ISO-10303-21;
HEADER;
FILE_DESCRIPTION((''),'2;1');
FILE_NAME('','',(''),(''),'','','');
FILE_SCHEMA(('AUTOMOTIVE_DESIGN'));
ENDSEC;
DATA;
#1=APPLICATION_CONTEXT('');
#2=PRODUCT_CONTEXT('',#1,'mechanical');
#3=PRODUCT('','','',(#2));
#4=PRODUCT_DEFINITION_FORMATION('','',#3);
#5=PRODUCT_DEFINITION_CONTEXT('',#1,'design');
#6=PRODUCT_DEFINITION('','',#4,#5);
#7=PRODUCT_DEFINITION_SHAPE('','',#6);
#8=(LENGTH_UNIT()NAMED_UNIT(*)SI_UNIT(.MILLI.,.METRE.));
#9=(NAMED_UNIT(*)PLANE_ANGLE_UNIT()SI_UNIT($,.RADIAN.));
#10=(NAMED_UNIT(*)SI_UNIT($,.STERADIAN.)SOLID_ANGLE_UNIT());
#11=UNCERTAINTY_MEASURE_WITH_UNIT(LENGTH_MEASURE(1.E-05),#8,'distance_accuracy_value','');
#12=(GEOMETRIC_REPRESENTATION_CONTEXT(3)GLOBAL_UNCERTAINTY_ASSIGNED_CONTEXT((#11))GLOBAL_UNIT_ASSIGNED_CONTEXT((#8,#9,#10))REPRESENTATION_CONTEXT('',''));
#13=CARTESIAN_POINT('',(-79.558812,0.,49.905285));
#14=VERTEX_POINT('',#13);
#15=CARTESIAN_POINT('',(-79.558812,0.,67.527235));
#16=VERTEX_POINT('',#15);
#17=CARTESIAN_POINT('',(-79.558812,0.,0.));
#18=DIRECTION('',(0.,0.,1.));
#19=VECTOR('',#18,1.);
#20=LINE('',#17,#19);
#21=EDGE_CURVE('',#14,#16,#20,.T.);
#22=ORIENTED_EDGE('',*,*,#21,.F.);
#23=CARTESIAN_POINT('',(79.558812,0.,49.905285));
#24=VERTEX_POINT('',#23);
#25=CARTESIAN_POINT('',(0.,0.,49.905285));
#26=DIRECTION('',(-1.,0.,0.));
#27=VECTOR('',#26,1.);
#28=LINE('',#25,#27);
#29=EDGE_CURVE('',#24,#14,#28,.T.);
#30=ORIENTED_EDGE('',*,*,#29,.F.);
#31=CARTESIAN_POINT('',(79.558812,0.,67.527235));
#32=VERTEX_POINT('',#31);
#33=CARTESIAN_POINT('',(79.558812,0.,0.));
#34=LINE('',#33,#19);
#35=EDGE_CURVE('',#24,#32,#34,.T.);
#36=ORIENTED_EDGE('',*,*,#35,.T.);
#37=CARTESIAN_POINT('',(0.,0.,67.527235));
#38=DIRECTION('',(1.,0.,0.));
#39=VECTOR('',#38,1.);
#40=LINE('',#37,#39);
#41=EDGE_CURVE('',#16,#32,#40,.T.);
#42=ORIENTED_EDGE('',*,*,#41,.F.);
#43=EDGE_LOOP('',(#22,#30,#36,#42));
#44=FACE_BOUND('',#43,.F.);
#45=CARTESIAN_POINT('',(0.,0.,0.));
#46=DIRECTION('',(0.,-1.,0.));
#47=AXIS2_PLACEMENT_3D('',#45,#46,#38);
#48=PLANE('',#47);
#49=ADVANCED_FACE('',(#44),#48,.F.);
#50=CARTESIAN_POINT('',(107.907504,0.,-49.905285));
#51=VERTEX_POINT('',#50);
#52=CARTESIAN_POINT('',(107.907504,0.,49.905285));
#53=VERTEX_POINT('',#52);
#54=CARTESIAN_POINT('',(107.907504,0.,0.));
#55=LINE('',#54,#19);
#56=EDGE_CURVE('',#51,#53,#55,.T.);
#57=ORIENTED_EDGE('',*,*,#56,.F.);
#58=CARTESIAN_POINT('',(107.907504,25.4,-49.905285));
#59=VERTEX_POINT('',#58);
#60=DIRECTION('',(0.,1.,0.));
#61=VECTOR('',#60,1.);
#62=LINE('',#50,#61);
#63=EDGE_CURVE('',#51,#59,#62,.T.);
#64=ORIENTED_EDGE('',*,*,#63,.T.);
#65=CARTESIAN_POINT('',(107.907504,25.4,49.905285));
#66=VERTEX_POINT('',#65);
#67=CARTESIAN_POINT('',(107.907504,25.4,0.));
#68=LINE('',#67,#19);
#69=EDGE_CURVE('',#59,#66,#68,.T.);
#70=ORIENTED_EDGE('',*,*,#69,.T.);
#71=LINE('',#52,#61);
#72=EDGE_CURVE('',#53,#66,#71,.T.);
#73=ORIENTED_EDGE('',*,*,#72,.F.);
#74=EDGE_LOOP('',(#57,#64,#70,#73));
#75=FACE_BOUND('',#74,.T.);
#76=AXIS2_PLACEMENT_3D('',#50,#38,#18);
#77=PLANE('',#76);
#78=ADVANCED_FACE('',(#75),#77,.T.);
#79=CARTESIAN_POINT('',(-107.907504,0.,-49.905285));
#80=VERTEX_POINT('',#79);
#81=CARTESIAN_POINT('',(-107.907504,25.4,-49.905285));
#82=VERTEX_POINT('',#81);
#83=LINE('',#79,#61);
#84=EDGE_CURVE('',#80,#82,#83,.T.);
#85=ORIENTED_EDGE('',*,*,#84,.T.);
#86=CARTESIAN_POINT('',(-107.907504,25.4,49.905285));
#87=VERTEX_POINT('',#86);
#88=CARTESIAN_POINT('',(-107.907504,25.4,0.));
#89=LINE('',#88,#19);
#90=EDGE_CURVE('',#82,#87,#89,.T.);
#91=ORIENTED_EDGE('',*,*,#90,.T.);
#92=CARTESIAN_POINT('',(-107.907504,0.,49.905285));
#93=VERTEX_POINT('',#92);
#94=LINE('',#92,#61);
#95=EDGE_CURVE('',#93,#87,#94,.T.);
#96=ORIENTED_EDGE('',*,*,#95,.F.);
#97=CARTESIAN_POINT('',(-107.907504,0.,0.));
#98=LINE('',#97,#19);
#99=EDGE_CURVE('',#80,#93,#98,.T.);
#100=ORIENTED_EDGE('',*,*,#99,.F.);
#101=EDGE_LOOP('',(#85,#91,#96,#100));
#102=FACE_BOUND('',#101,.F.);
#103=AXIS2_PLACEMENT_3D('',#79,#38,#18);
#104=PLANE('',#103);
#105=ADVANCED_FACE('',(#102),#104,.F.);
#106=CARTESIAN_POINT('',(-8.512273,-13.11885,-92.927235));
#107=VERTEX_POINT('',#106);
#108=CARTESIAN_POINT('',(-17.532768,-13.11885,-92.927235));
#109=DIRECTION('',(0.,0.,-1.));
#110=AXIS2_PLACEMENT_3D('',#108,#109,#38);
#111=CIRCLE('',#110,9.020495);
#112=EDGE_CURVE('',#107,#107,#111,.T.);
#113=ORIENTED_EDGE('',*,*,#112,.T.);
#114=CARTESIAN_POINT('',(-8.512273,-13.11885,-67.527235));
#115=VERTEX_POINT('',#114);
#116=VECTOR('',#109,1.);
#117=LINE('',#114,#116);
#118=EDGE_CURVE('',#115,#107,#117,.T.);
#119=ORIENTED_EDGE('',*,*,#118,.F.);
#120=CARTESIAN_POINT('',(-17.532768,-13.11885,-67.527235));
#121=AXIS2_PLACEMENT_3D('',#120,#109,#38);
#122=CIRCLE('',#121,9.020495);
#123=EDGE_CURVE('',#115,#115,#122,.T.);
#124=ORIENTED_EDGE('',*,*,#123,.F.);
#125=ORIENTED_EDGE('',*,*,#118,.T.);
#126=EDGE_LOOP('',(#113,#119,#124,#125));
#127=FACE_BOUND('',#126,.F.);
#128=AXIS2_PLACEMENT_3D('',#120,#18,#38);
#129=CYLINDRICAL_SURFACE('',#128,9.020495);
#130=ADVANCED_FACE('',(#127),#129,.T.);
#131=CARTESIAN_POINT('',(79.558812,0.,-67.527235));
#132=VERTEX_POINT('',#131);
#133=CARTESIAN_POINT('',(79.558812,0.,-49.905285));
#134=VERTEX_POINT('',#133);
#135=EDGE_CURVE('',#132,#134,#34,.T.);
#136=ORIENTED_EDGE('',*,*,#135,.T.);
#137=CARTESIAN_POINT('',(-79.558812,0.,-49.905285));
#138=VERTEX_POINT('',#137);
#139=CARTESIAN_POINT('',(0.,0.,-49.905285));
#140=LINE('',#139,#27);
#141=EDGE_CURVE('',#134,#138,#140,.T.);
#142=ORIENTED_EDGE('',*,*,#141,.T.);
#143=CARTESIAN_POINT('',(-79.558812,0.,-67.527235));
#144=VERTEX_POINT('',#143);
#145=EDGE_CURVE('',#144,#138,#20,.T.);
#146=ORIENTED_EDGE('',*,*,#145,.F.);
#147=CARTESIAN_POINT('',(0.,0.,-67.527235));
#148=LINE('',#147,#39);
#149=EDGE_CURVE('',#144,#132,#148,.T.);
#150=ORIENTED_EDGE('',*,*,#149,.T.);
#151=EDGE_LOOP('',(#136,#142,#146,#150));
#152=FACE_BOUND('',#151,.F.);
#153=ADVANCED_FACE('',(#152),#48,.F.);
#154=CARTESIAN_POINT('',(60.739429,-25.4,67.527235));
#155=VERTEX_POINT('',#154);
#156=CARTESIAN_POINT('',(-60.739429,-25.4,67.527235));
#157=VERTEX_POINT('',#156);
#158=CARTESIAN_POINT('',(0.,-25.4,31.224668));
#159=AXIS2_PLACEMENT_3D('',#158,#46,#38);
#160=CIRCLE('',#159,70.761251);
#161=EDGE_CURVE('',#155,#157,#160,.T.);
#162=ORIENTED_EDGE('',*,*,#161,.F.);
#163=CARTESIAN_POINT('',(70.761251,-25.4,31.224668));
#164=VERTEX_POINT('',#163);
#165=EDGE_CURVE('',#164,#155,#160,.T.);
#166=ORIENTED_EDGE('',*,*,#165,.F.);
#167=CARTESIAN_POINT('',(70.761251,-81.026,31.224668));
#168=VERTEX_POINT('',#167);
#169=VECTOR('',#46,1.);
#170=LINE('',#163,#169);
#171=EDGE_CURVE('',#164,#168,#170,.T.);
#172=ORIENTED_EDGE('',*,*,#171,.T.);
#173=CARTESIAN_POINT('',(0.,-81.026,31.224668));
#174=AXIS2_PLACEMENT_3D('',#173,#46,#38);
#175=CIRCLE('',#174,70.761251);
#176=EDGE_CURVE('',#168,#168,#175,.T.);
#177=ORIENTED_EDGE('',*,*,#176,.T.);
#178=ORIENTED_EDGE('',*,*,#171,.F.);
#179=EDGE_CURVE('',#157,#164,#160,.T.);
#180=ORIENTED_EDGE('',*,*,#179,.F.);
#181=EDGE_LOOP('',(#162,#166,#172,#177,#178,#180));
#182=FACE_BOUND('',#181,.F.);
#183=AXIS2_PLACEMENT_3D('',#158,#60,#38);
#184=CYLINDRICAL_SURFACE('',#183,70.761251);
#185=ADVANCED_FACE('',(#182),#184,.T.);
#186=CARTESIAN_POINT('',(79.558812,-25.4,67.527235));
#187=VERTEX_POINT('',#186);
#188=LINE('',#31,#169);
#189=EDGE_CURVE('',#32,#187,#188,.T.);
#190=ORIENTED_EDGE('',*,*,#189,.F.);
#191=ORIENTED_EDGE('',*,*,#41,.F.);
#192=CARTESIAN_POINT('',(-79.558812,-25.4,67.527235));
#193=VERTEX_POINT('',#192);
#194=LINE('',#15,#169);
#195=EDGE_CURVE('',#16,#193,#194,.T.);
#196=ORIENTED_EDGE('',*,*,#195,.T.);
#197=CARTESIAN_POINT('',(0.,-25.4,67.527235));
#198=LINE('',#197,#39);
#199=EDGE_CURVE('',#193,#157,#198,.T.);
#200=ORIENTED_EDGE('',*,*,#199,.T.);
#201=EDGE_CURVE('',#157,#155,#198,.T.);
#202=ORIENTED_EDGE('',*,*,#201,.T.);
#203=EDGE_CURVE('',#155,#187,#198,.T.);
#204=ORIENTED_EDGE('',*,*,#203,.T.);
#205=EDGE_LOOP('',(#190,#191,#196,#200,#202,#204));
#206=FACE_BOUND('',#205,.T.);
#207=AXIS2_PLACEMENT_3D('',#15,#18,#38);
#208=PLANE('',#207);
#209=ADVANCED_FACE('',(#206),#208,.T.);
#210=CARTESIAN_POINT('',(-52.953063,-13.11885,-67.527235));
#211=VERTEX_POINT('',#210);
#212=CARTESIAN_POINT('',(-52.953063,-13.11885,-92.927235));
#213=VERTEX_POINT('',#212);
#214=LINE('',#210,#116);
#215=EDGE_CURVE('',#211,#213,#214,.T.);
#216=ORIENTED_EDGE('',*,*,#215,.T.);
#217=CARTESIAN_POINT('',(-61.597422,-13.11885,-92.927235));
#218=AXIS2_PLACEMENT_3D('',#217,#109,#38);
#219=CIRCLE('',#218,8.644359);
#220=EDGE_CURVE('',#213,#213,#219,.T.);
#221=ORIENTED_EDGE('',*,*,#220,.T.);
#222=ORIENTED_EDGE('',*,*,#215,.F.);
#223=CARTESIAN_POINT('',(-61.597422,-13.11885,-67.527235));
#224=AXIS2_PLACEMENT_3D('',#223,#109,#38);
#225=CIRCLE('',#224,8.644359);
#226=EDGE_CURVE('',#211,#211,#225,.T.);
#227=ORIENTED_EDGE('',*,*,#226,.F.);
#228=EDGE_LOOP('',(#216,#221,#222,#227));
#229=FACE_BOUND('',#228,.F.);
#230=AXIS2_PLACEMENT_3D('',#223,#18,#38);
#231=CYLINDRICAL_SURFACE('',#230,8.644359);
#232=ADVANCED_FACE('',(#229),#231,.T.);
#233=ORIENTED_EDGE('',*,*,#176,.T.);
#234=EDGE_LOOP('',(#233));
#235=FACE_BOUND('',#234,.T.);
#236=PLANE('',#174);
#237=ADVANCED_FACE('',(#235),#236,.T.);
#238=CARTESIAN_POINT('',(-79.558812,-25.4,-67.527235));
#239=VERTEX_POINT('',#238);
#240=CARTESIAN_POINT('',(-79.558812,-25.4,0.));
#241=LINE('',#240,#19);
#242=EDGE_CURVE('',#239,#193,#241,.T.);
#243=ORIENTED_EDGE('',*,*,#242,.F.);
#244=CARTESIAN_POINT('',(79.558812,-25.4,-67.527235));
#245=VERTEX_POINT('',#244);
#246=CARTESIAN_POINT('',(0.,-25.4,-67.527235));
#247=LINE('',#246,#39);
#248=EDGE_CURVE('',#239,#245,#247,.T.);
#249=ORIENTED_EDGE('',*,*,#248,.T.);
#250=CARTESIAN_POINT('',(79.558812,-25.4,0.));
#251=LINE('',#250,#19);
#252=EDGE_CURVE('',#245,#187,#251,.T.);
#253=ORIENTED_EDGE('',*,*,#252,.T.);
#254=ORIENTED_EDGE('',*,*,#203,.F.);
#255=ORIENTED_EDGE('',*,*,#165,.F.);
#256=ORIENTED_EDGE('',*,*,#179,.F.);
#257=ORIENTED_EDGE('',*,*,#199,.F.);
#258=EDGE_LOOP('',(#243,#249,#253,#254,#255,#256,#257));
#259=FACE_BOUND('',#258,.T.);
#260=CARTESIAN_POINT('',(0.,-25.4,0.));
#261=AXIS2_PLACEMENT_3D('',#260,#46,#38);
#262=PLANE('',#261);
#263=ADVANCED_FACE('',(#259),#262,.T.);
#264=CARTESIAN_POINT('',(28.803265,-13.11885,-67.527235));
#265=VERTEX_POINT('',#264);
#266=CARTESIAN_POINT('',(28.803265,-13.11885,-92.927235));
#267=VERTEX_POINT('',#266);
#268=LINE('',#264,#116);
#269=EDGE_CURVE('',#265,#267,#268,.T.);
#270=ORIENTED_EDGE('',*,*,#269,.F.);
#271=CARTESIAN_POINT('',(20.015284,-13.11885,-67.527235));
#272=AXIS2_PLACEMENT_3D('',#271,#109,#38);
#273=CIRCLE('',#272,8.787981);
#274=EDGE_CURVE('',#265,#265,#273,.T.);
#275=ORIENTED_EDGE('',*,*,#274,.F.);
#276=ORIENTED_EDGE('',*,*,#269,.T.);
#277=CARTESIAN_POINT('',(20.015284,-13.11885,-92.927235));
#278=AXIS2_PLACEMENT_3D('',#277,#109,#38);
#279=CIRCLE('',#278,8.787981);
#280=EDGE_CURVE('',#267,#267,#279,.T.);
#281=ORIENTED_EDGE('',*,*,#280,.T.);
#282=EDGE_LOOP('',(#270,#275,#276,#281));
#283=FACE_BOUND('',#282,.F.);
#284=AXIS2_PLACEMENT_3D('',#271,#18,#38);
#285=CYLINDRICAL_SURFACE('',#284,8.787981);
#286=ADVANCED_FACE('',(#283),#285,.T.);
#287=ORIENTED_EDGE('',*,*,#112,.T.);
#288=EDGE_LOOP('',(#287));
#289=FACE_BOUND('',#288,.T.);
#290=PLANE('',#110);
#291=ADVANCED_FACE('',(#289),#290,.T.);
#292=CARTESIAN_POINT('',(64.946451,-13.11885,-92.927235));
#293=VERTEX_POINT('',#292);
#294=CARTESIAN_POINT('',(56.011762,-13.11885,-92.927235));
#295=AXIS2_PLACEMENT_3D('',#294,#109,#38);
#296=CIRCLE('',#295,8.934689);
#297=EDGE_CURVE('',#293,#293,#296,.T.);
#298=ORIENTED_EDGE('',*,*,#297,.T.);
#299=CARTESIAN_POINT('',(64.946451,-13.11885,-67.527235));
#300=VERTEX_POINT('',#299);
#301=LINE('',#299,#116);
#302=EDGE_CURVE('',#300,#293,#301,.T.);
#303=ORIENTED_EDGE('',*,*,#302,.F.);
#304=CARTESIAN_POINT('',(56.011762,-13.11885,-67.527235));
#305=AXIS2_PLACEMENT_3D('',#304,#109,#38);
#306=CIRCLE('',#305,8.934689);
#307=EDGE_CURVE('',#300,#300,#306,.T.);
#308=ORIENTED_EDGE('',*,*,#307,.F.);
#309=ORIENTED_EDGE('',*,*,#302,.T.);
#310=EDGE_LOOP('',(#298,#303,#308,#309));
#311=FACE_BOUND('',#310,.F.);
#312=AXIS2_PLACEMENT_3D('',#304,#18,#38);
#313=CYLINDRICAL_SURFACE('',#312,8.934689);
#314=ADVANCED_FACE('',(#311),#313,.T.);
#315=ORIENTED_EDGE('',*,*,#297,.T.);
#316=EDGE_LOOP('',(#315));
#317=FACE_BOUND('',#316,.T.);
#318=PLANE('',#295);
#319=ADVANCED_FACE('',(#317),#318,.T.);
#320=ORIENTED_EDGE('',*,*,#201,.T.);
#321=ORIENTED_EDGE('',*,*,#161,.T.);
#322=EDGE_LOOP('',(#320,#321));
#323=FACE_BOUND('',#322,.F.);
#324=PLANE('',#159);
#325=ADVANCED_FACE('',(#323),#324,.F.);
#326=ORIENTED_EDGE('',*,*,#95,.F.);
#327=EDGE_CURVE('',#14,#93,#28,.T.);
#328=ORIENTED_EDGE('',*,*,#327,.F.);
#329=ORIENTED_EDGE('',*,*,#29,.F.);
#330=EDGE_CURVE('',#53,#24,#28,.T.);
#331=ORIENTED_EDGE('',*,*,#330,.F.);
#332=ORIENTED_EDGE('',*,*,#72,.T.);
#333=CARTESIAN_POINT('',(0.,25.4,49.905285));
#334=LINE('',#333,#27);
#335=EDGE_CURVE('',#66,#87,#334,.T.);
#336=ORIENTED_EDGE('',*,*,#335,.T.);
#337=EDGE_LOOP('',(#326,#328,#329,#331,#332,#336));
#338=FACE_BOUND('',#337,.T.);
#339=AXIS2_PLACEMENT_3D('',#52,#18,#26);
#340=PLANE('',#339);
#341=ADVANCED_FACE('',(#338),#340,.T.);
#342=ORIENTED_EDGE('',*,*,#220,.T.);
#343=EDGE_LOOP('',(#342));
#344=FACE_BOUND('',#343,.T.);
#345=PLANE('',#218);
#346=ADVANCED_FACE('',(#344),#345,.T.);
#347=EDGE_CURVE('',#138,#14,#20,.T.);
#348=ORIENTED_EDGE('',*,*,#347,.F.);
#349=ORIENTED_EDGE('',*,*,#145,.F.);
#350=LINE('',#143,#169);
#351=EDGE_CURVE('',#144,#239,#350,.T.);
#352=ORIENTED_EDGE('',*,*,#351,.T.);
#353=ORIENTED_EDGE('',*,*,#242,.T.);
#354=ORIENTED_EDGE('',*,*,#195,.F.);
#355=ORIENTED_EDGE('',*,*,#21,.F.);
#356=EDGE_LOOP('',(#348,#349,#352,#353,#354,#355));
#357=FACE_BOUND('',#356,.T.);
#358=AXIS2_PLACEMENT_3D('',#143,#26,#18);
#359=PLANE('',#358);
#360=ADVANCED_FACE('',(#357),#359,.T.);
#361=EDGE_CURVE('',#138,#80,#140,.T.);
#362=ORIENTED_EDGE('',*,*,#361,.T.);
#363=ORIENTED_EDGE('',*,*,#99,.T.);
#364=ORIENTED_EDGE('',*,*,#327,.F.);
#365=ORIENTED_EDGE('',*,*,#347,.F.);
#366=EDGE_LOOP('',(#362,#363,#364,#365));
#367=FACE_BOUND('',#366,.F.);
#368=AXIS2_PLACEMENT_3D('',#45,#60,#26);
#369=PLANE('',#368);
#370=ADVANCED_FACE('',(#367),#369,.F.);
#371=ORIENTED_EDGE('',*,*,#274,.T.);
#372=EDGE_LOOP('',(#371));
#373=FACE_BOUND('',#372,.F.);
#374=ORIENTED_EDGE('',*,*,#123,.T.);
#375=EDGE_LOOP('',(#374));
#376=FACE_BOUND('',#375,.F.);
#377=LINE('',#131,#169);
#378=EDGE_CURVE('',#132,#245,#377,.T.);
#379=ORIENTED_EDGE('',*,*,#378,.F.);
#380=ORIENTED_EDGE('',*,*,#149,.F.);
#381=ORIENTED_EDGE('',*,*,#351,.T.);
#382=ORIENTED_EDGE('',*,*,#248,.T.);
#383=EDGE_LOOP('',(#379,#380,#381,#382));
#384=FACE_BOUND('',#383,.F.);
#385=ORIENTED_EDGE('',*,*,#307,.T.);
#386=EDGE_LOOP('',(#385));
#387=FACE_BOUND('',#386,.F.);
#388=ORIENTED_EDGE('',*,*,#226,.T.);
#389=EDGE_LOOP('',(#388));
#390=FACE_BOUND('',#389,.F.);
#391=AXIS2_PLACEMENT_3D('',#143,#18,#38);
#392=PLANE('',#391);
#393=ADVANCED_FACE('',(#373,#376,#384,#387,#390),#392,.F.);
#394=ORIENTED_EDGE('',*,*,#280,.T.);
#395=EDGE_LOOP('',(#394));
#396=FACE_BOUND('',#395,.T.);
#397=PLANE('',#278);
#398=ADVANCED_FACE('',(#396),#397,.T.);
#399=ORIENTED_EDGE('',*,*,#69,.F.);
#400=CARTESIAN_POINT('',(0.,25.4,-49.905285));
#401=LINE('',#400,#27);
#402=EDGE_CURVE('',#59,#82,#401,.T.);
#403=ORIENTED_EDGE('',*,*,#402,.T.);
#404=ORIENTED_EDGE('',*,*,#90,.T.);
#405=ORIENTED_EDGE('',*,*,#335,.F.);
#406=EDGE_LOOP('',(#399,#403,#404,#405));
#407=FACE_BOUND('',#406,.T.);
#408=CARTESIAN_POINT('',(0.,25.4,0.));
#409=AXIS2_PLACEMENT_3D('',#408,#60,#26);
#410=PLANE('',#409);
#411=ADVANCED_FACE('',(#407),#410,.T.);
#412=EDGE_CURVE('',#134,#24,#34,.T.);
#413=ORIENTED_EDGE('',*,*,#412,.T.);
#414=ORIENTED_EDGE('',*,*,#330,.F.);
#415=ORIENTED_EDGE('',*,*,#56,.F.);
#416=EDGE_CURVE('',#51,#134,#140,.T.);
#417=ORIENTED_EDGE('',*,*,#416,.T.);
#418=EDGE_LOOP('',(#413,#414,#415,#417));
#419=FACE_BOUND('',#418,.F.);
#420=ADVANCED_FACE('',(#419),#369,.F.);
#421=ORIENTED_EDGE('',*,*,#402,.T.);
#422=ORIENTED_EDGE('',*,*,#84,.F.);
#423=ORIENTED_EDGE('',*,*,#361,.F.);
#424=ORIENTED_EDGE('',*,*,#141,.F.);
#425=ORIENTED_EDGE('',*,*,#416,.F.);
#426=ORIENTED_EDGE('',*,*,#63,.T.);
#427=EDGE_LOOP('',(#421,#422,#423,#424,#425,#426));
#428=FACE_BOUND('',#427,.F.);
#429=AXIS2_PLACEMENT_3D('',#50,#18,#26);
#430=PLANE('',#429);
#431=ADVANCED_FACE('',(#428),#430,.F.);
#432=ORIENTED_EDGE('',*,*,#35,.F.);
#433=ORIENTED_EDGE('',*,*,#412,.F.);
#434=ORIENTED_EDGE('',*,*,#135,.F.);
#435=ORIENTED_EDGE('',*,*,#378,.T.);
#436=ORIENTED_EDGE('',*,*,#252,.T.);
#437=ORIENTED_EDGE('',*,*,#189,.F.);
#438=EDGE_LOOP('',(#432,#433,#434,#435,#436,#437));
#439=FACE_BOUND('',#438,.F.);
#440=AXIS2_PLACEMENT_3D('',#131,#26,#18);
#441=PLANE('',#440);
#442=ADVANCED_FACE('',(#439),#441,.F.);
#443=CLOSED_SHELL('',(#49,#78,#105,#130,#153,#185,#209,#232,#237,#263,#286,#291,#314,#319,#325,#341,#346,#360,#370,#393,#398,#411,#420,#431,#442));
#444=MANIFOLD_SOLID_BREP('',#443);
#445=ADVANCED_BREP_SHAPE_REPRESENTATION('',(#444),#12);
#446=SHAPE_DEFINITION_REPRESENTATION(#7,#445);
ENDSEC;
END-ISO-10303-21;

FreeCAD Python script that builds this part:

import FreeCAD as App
import Part
import Sketcher
from FreeCAD import Vector

doc = App.newDocument("Part")
params = doc.addObject("Spreadsheet::Sheet", "Params")
for row, (alias, value) in enumerate([
    ("pad1_length", "1 in"),
    ("pad2_length", "2.19 in"),
    ("pad3_length", "1 in"),
    ("pad4_length", "1 in"),
], start=1):
    params.set(f"A{row}", alias)
    params.set(f"B{row}", "=" + value)
    params.setAlias(f"B{row}", alias)

body = doc.addObject("PartDesign::Body", "Body")

sketch1 = body.newObject("Sketcher::SketchObject", "Sketch")
sketch1.AttachmentSupport = (doc.getObject("XZ_Plane"), [""])
sketch1.MapMode = "FlatFace"
sketch1.addGeometry([
    Part.LineSegment(Vector(-80, 68, 0), Vector(-80, -68, 0)),
    Part.LineSegment(Vector(-80, -68, 0), Vector(80, -68, 0)),
    Part.LineSegment(Vector(80, -68, 0), Vector(80, 68, 0)),
    Part.LineSegment(Vector(80, 68, 0), Vector(-80, 68, 0)),
], False)
sketch1.addConstraint([
    Sketcher.Constraint("Coincident", 0, 2, 1, 1),
    Sketcher.Constraint("Coincident", 1, 2, 2, 1),
    Sketcher.Constraint("Coincident", 2, 2, 3, 1),
    Sketcher.Constraint("Coincident", 3, 2, 0, 1),
    Sketcher.Constraint("Vertical", 0),
    Sketcher.Constraint("Horizontal", 1),
    Sketcher.Constraint("Vertical", 2),
    Sketcher.Constraint("Horizontal", 3),
    Sketcher.Constraint("Symmetric", 0, 2, 2, 2, -1, 1),
    Sketcher.Constraint("DistanceY", 0, 2, 0, 1, 135.05447),
    Sketcher.Constraint("DistanceX", 1, 1, 1, 2, 159.117624),
])
pad1 = body.newObject("PartDesign::Pad", "Pad")
pad1.Profile = sketch1
pad1.setExpression("Length", "Params.pad1_length")

sketch2 = body.newObject("Sketcher::SketchObject", "Sketch001")
sketch2.AttachmentSupport = (doc.getObject("XZ_Plane"), [""])
sketch2.MapMode = "FlatFace"
sketch2.AttachmentOffset = App.Placement(Vector(0, 0, 1 * 25.4), App.Rotation())
sketch2.addGeometry(Part.Circle(Vector(0, 31, 0), Vector(0, 0, 1), 71), False)
sketch2.addConstraint([
    Sketcher.Constraint("PointOnObject", 0, 3, -2),
    Sketcher.Constraint("Diameter", 0, 141.522502),
    Sketcher.Constraint("DistanceY", -1, 1, 0, 3, 31.224668),
])
pad2 = body.newObject("PartDesign::Pad", "Pad001")
pad2.Profile = sketch2
pad2.setExpression("Length", "Params.pad2_length")

sketch3 = body.newObject("Sketcher::SketchObject", "Sketch002")
sketch3.AttachmentSupport = (doc.getObject("XY_Plane"), [""])
sketch3.MapMode = "FlatFace"
sketch3.AttachmentOffset = App.Placement(Vector(0, 0, -67.527235), App.Rotation())
sketch3.addGeometry([
    Part.Circle(Vector(-62, -13, 0), Vector(0, 0, 1), 9),
    Part.Circle(Vector(-18, -13, 0), Vector(0, 0, 1), 9),
    Part.Circle(Vector(20, -13, 0), Vector(0, 0, 1), 9),
    Part.Circle(Vector(56, -13, 0), Vector(0, 0, 1), 9),
], False)
sketch3.addConstraint([
    Sketcher.Constraint("Horizontal", 0, 3, 1, 3),
    Sketcher.Constraint("Horizontal", 1, 3, 2, 3),
    Sketcher.Constraint("Horizontal", 2, 3, 3, 3),
    Sketcher.Constraint("Diameter", 1, 18.04099),
    Sketcher.Constraint("Diameter", 3, 17.869378),
    Sketcher.Constraint("Diameter", 0, 17.288718),
    Sketcher.Constraint("Diameter", 2, 17.575962),
    Sketcher.Constraint("DistanceY", 0, 3, -1, 1, 13.11885),
    Sketcher.Constraint("DistanceX", 1, 3, -1, 1, 17.532768),
    Sketcher.Constraint("DistanceX", -1, 1, 3, 3, 56.011762),
    Sketcher.Constraint("DistanceX", 1, 3, 2, 3, 37.548052),
    Sketcher.Constraint("DistanceX", 0, 3, -1, 1, 61.597422),
])
pad3 = body.newObject("PartDesign::Pad", "Pad002")
pad3.Profile = sketch3
pad3.setExpression("Length", "Params.pad3_length")
pad3.Reversed = True

sketch4 = body.newObject("Sketcher::SketchObject", "Sketch003")
sketch4.AttachmentSupport = (doc.getObject("XZ_Plane"), [""])
sketch4.MapMode = "FlatFace"
sketch4.addGeometry([
    Part.LineSegment(Vector(108, 50, 0), Vector(108, -50, 0)),
    Part.LineSegment(Vector(108, -50, 0), Vector(-108, -50, 0)),
    Part.LineSegment(Vector(-108, -50, 0), Vector(-108, 50, 0)),
    Part.LineSegment(Vector(-108, 50, 0), Vector(108, 50, 0)),
], False)
sketch4.addConstraint([
    Sketcher.Constraint("Coincident", 0, 2, 1, 1),
    Sketcher.Constraint("Coincident", 1, 2, 2, 1),
    Sketcher.Constraint("Coincident", 2, 2, 3, 1),
    Sketcher.Constraint("Coincident", 3, 2, 0, 1),
    Sketcher.Constraint("Vertical", 0),
    Sketcher.Constraint("Horizontal", 1),
    Sketcher.Constraint("Vertical", 2),
    Sketcher.Constraint("Horizontal", 3),
    Sketcher.Constraint("Symmetric", 0, 2, 2, 2, -1, 1),
    Sketcher.Constraint("DistanceX", 1, 2, 1, 1, 215.815008),
    Sketcher.Constraint("DistanceY", 0, 2, 0, 1, 99.81057),
])
pad4 = body.newObject("PartDesign::Pad", "Pad003")
pad4.Profile = sketch4
pad4.setExpression("Length", "Params.pad4_length")
pad4.Reversed = True

doc.recompute()
